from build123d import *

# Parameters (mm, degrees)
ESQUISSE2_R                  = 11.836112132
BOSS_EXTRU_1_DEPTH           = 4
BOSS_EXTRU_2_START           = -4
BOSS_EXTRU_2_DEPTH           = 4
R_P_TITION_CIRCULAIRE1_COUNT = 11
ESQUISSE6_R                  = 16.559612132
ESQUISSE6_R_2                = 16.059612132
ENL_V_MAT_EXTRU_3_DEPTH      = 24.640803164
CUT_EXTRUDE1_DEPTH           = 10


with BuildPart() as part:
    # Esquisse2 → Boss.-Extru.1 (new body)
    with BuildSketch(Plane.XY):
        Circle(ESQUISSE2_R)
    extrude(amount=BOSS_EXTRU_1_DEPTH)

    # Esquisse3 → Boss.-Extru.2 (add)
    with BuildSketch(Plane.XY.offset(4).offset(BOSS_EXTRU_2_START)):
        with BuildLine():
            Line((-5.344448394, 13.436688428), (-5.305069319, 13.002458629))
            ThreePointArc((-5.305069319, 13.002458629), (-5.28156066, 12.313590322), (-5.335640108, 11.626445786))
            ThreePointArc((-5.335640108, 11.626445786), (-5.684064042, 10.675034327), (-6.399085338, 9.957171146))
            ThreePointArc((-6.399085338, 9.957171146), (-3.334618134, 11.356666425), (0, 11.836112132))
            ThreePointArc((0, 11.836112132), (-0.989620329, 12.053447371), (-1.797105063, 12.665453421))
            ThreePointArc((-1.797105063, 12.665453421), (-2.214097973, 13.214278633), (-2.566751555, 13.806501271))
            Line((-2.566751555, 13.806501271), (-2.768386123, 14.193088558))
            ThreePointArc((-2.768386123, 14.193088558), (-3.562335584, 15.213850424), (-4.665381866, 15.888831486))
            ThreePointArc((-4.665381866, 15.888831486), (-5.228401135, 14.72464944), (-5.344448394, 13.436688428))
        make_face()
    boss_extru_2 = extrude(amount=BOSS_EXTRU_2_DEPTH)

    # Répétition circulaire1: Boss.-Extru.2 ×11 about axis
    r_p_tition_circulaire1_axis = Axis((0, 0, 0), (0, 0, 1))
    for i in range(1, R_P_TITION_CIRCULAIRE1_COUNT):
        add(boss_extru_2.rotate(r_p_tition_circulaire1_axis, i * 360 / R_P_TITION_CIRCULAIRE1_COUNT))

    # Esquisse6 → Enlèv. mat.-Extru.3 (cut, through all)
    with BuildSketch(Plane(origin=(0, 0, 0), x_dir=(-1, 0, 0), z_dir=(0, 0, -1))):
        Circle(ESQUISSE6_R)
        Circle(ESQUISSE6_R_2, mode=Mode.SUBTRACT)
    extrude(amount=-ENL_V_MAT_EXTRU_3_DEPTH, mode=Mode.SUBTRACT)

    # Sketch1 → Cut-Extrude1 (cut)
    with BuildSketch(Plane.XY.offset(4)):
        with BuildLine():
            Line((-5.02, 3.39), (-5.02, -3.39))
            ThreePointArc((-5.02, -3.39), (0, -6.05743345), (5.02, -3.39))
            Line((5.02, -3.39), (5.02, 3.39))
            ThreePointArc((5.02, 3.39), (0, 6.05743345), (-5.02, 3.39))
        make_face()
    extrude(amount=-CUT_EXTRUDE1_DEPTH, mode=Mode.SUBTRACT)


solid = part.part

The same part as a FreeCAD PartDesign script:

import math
import FreeCAD as App
import Part
import Sketcher
from FreeCAD import Vector
Q = App.Units.Quantity

doc = App.newDocument("Part")
body = doc.addObject("PartDesign::Body", "Body")

# Sketch on XY plane
sketch1 = body.newObject("Sketcher::SketchObject", "Sketch")
sketch1.AttachmentSupport = (doc.getObject("XY_Plane"), [""])
sketch1.MapMode = "FlatFace"
sketch1.addGeometry(Part.Circle(Vector(0, 0, 0), Vector(0, 0, 1), 11.836112), False)
sketch1.addConstraint([
    Sketcher.Constraint("Coincident", 0, 3, -1, 1),
    Sketcher.Constraint("Diameter", 0, Q("23.672224 mm")),
])
pad1 = body.newObject("PartDesign::Pad", "Pad")
pad1.Profile = sketch1
pad1.Length = 4

# Sketch on XY plane
sketch2 = body.newObject("Sketcher::SketchObject", "Sketch001")
sketch2.AttachmentSupport = (doc.getObject("XY_Plane"), [""])
sketch2.MapMode = "FlatFace"
sketch2.addGeometry([
    Part.LineSegment(Vector(-5.344448, 13.436688, 0), Vector(-5.305069, 13.002459, 0)),  # 0
    Part.ArcOfCircle(Part.Circle(Vector(-11.4018, 12.449563, 0), Vector(0, 0, 1), 6.12175), math.radians(-7.727273), math.radians(5.181818)),  # 1
    Part.ArcOfCircle(Part.Circle(Vector(-7.675944, 11.944002, 0), Vector(0, 0, 1), 2.36175), math.radians(-57.272727), math.radians(-7.727273)),  # 2
    Part.ArcOfCircle(Part.Circle(Vector(0, 0, 0), Vector(0, 0, 1), 11.836112), math.radians(90), math.radians(122.727273)),  # 3
    Part.ArcOfCircle(Part.Circle(Vector(0, 14.197862, 0), Vector(0, 0, 1), 2.36175), math.radians(-139.545455), math.radians(-90)),  # 4
    Part.ArcOfCircle(Part.Circle(Vector(2.861063, 16.637518, 0), Vector(0, 0, 1), 6.12175), math.radians(-152.454545), math.radians(-139.545455)),  # 5
    Part.LineSegment(Vector(-2.566752, 13.806501, 0), Vector(-2.768386, 14.193089, 0)),  # 6
    Part.ArcOfCircle(Part.Circle(Vector(-5.965373, 12.525618, 0), Vector(0, 0, 1), 3.605716), math.radians(27.545455), math.radians(68.866868)),  # 7
    Part.ArcOfCircle(Part.Circle(Vector(-1.753469, 13.762344, 0), Vector(0, 0, 1), 3.605716), math.radians(143.860405), math.radians(185.181818)),  # 8
], False)
sketch2.addConstraint([
    Sketcher.Constraint("Coincident", 0, 2, 1, 2),
    Sketcher.Constraint("Coincident", 1, 1, 2, 2),
    Sketcher.Constraint("Coincident", 2, 1, 3, 2),
    Sketcher.Constraint("Coincident", 3, 1, 4, 2),
    Sketcher.Constraint("Coincident", 4, 1, 5, 2),
    Sketcher.Constraint("Coincident", 5, 1, 6, 1),
    Sketcher.Constraint("Coincident", 6, 2, 7, 1),
    Sketcher.Constraint("Coincident", 7, 2, 8, 1),
    Sketcher.Constraint("Coincident", 8, 2, 0, 1),
    Sketcher.Constraint("Coincident", 3, 3, -1, 1),
    Sketcher.Constraint("PointOnObject", 4, 3, -2),
    Sketcher.Constraint("PointOnObject", 3, 1, -2),
    Sketcher.Constraint("Radius", 1, Q("6.12175 mm")),
    Sketcher.Constraint("Radius", 2, Q("2.36175 mm")),
    Sketcher.Constraint("Radius", 4, Q("2.36175 mm")),
    Sketcher.Constraint("Radius", 5, Q("6.12175 mm")),
    Sketcher.Constraint("DistanceY", -1, 1, 2, 3, Q("11.944002 mm")),
    Sketcher.Constraint("Radius", 3, Q("11.836112 mm")),
    Sketcher.Constraint("Radius", 7, Q("3.605716 mm")),
    Sketcher.Constraint("Radius", 8, Q("3.605716 mm")),
    Sketcher.Constraint("DistanceX", 1, 3, -1, 1, Q("11.4018 mm")),
    Sketcher.Constraint("DistanceY", -1, 1, 5, 1, Q("13.806501 mm")),
    Sketcher.Constraint("DistanceY", 7, 3, 5, 3, Q("4.1119 mm")),
    Sketcher.Constraint("DistanceX", 0, 2, 8, 3, Q("3.5516 mm")),
    Sketcher.Constraint("DistanceY", 1, 1, 8, 3, Q("2.135898 mm")),
    Sketcher.Constraint("DistanceY", 8, 2, 6, 2, Q("0.7564 mm")),
    Sketcher.Constraint("Distance", 0, Q("0.436012 mm")),
    Sketcher.Constraint("Distance", 6, Q("0.436012 mm")),
    Sketcher.Constraint("DistanceX", 8, 3, -1, 1, Q("1.753469 mm")),
    Sketcher.Constraint("DistanceX", 1, 1, -1, 1, Q("5.33564 mm")),
    Sketcher.Constraint("DistanceY", -1, 1, 2, 1, Q("9.957171 mm")),
    Sketcher.Constraint("DistanceX", 5, 1, -1, 1, Q("2.566752 mm")),
    Sketcher.Constraint("DistanceY", 4, 1, 8, 3, Q("1.096891 mm")),
])
pad2 = body.newObject("PartDesign::Pad", "Pad001")
pad2.Profile = sketch2
pad2.Length = 4
doc.recompute()

polarpattern = body.newObject("PartDesign::PolarPattern", "PolarPattern")
polarpattern.Originals = [pad2]
polarpattern.Axis = (doc.getObject("Z_Axis"), [""])
polarpattern.Angle = 360
polarpattern.Occurrences = 11
body.Tip = polarpattern

# Sketch on XY plane
sketch3 = body.newObject("Sketcher::SketchObject", "Sketch002")
sketch3.AttachmentSupport = (doc.getObject("XY_Plane"), [""])
sketch3.MapMode = "FlatFace"
sketch3.addGeometry([
    Part.Circle(Vector(0, 0, 0), Vector(0, 0, 1), 16.559612),
    Part.Circle(Vector(0, 0, 0), Vector(0, 0, 1), 16.059612),
], False)
sketch3.addConstraint([
    Sketcher.Constraint("Coincident", 0, 3, -1, 1),
    Sketcher.Constraint("Coincident", 1, 3, -1, 1),
    Sketcher.Constraint("Diameter", 0, Q("33.119224 mm")),
    Sketcher.Constraint("Diameter", 1, Q("32.119224 mm")),
])
pocket1 = body.newObject("PartDesign::Pocket", "Pocket")
pocket1.Profile = sketch3
pocket1.Type = "ThroughAll"
pocket1.Reversed = True

# Sketch on XY plane
sketch4 = body.newObject("Sketcher::SketchObject", "Sketch003")
sketch4.AttachmentSupport = (doc.getObject("XY_Plane"), [""])
sketch4.MapMode = "FlatFace"
sketch4.AttachmentOffset = App.Placement(Vector(0, 0, 4), App.Rotation())
sketch4.addGeometry([
    Part.LineSegment(Vector(-5.02, 3.39, 0), Vector(-5.02, -3.39, 0)),
    Part.ArcOfCircle(Part.Circle(Vector(0, 0, 0), Vector(0, 0, 1), 6.057433), math.radians(-145.96889), math.radians(-34.03111)),
    Part.LineSegment(Vector(5.02, -3.39, 0), Vector(5.02, 3.39, 0)),
    Part.ArcOfCircle(Part.Circle(Vector(0, 0, 0), Vector(0, 0, 1), 6.057433), math.radians(34.03111), math.radians(145.96889)),
], False)
sketch4.addConstraint([
    Sketcher.Constraint("Coincident", 0, 2, 1, 1),
    Sketcher.Constraint("Coincident", 1, 2, 2, 1),
    Sketcher.Constraint("Coincident", 2, 2, 3, 1),
    Sketcher.Constraint("Coincident", 3, 2, 0, 1),
    Sketcher.Constraint("Vertical", 0),
    Sketcher.Constraint("Vertical", 2),
    Sketcher.Constraint("Coincident", 1, 3, -1, 1),
    Sketcher.Constraint("Coincident", 3, 3, -1, 1),
    Sketcher.Constraint("Equal", 1, 3),
    Sketcher.Constraint("Horizontal", 0, 2, 1, 2),
    Sketcher.Constraint("DistanceY", 0, 2, 0, 1, Q("6.78 mm")),
    Sketcher.Constraint("DistanceX", 0, 2, -1, 1, Q("5.02 mm")),
])
pocket2 = body.newObject("PartDesign::Pocket", "Pocket001")
pocket2.Profile = sketch4
pocket2.Length = 10

doc.recompute()
